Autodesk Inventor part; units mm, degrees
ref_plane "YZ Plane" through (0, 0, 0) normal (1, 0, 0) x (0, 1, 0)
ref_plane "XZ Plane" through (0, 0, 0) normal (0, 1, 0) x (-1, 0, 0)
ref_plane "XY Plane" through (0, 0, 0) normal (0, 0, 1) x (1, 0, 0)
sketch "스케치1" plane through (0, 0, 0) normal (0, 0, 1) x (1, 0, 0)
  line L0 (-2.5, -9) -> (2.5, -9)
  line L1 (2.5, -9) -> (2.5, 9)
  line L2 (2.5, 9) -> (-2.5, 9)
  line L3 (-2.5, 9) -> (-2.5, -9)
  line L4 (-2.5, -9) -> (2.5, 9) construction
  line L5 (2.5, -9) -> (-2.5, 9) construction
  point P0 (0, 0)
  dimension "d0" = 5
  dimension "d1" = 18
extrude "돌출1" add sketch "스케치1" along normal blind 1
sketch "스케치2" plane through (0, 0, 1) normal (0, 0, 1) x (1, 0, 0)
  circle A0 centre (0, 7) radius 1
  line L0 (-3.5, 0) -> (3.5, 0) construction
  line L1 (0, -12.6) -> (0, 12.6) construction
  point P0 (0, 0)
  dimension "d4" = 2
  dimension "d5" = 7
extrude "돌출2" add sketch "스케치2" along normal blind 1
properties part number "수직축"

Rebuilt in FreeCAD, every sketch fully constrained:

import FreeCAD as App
import Part
import Sketcher
from FreeCAD import Vector
Q = App.Units.Quantity


def add_polygon(sketch, points):
    """Adds a closed chain of lines whose ends are joined by coincident constraints."""
    first, n = sketch.GeometryCount, len(points)
    for a, b in zip(points, points[1:] + points[:1]):
        sketch.addGeometry(Part.LineSegment(App.Vector(*a, 0), App.Vector(*b, 0)), False)
    for i in range(n):
        sketch.addConstraint(Sketcher.Constraint("Coincident", first + i, 2, first + (i + 1) % n, 1))

doc = App.newDocument("Part")
params = doc.addObject("Spreadsheet::Sheet", "Params")
for row, (alias, value) in enumerate([
    ("sketch1_width", "5 mm"),
    ("sketch1_height", "18 mm"),
    ("pad1_length", "1 mm"),
    ("sketch2_diameter", "2 mm"),
    ("pad2_length", "1 mm"),
], start=1):
    params.set(f"A{row}", alias)
    params.set(f"B{row}", "=" + value)
    params.setAlias(f"B{row}", alias)

body = doc.addObject("PartDesign::Body", "Body")

sketch1 = body.newObject("Sketcher::SketchObject", "Sketch")
sketch1.AttachmentSupport = (doc.getObject("XY_Plane"), [""])
sketch1.MapMode = "FlatFace"
add_polygon(sketch1, [(-2, 9), (-2, -9), (2, -9), (2, 9)])
sketch1.addConstraint(Sketcher.Constraint("Vertical", 0))
sketch1.addConstraint(Sketcher.Constraint("Horizontal", 1))
sketch1.addConstraint(Sketcher.Constraint("Vertical", 2))
sketch1.addConstraint(Sketcher.Constraint("Horizontal", 3))
sketch1.addConstraint(Sketcher.Constraint("Symmetric", 0, 2, 2, 2, -1, 1))
sketch1.addConstraint(Sketcher.Constraint("DistanceX", 1, 1, 1, 2, Q("5 mm")))
sketch1.addConstraint(Sketcher.Constraint("DistanceY", 0, 2, 0, 1, Q("18 mm")))
sketch1.setExpression("Constraints[9]", "Params.sketch1_width")
sketch1.setExpression("Constraints[10]", "Params.sketch1_height")
pad1 = body.newObject("PartDesign::Pad", "Pad")
pad1.Profile = sketch1
pad1.setExpression("Length", "Params.pad1_length")

sketch2 = body.newObject("Sketcher::SketchObject", "Sketch001")
sketch2.AttachmentSupport = (doc.getObject("XY_Plane"), [""])
sketch2.MapMode = "FlatFace"
sketch2.AttachmentOffset = App.Placement(Vector(0, 0, 1), App.Rotation())
sketch2.addGeometry(Part.Circle(Vector(0, 7, 0), Vector(0, 0, 1), 1), False)
sketch2.addConstraint(Sketcher.Constraint("PointOnObject", 0, 3, -2))
sketch2.addConstraint(Sketcher.Constraint("Diameter", 0, Q("2 mm")))
sketch2.addConstraint(Sketcher.Constraint("DistanceY", -1, 1, 0, 3, Q("7 mm")))
sketch2.setExpression("Constraints[1]", "Params.sketch2_diameter")
pad2 = body.newObject("PartDesign::Pad", "Pad001")
pad2.Profile = sketch2
pad2.setExpression("Length", "Params.pad2_length")

doc.recompute()
